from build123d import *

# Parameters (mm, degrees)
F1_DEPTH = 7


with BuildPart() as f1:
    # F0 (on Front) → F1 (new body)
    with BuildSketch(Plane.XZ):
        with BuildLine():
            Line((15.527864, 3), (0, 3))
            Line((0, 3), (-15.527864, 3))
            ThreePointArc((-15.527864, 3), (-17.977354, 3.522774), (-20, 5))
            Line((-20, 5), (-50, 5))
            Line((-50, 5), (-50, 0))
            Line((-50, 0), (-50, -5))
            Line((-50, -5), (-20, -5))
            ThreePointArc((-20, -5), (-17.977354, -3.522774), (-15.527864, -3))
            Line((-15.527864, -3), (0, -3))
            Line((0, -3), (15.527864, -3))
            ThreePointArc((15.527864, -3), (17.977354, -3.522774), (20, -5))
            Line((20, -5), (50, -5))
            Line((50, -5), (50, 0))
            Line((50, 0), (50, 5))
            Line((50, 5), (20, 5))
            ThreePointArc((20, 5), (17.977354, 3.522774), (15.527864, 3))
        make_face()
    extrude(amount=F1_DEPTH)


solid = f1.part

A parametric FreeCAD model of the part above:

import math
import FreeCAD as App
import Part
import Sketcher
Q = App.Units.Quantity

doc = App.newDocument("Part")
body = doc.addObject("PartDesign::Body", "Body")

# Sketch on XZ plane
sketch1 = doc.addObject("Sketcher::SketchObject", "Sketch")
body.addObject(sketch1)
sketch1.AttachmentSupport = (doc.XZ_Plane, [""])
sketch1.MapMode = "FlatFace"
sketch1.addGeometry(Part.LineSegment(App.Vector(15.5, 3, 0), App.Vector(-15.5, 3, 0)), False)
sketch1.addGeometry(Part.ArcOfCircle(Part.Circle(App.Vector(-15.5, 9, 0), App.Vector(0, 0, 1), 6), math.radians(-138), math.radians(-90)), False)
sketch1.addGeometry(Part.LineSegment(App.Vector(-20, 5, 0), App.Vector(-50, 5, 0)), False)
sketch1.addGeometry(Part.LineSegment(App.Vector(-50, 5, 0), App.Vector(-50, -5, 0)), False)
sketch1.addGeometry(Part.LineSegment(App.Vector(-50, -5, 0), App.Vector(-20, -5, 0)), False)
sketch1.addGeometry(Part.ArcOfCircle(Part.Circle(App.Vector(-15.5, -9, 0), App.Vector(0, 0, 1), 6), math.radians(90), math.radians(138)), False)
sketch1.addGeometry(Part.LineSegment(App.Vector(-15.5, -3, 0), App.Vector(15.5, -3, 0)), False)
sketch1.addGeometry(Part.ArcOfCircle(Part.Circle(App.Vector(15.5, -9, 0), App.Vector(0, 0, 1), 6), math.radians(42), math.radians(90)), False)
sketch1.addGeometry(Part.LineSegment(App.Vector(20, -5, 0), App.Vector(50, -5, 0)), False)
sketch1.addGeometry(Part.LineSegment(App.Vector(50, -5, 0), App.Vector(50, 5, 0)), False)
sketch1.addGeometry(Part.LineSegment(App.Vector(50, 5, 0), App.Vector(20, 5, 0)), False)
sketch1.addGeometry(Part.ArcOfCircle(Part.Circle(App.Vector(15.5, 9, 0), App.Vector(0, 0, 1), 6), math.radians(-90), math.radians(-42)), False)
sketch1.addConstraint(Sketcher.Constraint("Tangent", 0, 2, 1, 2))
sketch1.addConstraint(Sketcher.Constraint("Coincident", 1, 1, 2, 1))
sketch1.addConstraint(Sketcher.Constraint("Coincident", 2, 2, 3, 1))
sketch1.addConstraint(Sketcher.Constraint("Coincident", 3, 2, 4, 1))
sketch1.addConstraint(Sketcher.Constraint("Coincident", 4, 2, 5, 2))
sketch1.addConstraint(Sketcher.Constraint("Tangent", 5, 1, 6, 1))
sketch1.addConstraint(Sketcher.Constraint("Tangent", 6, 2, 7, 2))
sketch1.addConstraint(Sketcher.Constraint("Coincident", 7, 1, 8, 1))
sketch1.addConstraint(Sketcher.Constraint("Coincident", 8, 2, 9, 1))
sketch1.addConstraint(Sketcher.Constraint("Coincident", 9, 2, 10, 1))
sketch1.addConstraint(Sketcher.Constraint("Coincident", 10, 2, 11, 2))
sketch1.addConstraint(Sketcher.Constraint("Tangent", 11, 1, 0, 1))
sketch1.addConstraint(Sketcher.Constraint("Horizontal", 0))
sketch1.addConstraint(Sketcher.Constraint("Horizontal", 2))
sketch1.addConstraint(Sketcher.Constraint("Vertical", 3))
sketch1.addConstraint(Sketcher.Constraint("Horizontal", 4))
sketch1.addConstraint(Sketcher.Constraint("Horizontal", 6))
sketch1.addConstraint(Sketcher.Constraint("Horizontal", 8))
sketch1.addConstraint(Sketcher.Constraint("Vertical", 9))
sketch1.addConstraint(Sketcher.Constraint("Horizontal", 10))
sketch1.addConstraint(Sketcher.Constraint("Equal", 1, 5))
sketch1.addConstraint(Sketcher.Constraint("Equal", 5, 7))
sketch1.addConstraint(Sketcher.Constraint("Equal", 7, 11))
sketch1.addConstraint(Sketcher.Constraint("Symmetric", 1, 3, 7, 3, -1, 1))
sketch1.addConstraint(Sketcher.Constraint("Symmetric", 2, 2, 8, 2, -1, 1))
sketch1.addConstraint(Sketcher.Constraint("Symmetric", 4, 2, 10, 2, -1, 1))
sketch1.addConstraint(Sketcher.Constraint("Symmetric", 4, 2, 7, 1, -2))
sketch1.addConstraint(Sketcher.Constraint("DistanceX", 2, 2, 2, 1, Q("30 mm")))
sketch1.addConstraint(Sketcher.Constraint("DistanceY", 3, 2, 3, 1, Q("10 mm")))
sketch1.addConstraint(Sketcher.Constraint("DistanceY", -1, 1, 0, 2, Q("3 mm")))
sketch1.addConstraint(Sketcher.Constraint("DistanceX", 1, 1, -1, 1, Q("20 mm")))
sketch1.addConstraint(Sketcher.Constraint("Radius", 1, Q("5.999995 mm")))
pad1 = doc.addObject("PartDesign::Pad", "Pad")
body.addObject(pad1)
pad1.Profile = sketch1
pad1.Length = 7

doc.recompute()
